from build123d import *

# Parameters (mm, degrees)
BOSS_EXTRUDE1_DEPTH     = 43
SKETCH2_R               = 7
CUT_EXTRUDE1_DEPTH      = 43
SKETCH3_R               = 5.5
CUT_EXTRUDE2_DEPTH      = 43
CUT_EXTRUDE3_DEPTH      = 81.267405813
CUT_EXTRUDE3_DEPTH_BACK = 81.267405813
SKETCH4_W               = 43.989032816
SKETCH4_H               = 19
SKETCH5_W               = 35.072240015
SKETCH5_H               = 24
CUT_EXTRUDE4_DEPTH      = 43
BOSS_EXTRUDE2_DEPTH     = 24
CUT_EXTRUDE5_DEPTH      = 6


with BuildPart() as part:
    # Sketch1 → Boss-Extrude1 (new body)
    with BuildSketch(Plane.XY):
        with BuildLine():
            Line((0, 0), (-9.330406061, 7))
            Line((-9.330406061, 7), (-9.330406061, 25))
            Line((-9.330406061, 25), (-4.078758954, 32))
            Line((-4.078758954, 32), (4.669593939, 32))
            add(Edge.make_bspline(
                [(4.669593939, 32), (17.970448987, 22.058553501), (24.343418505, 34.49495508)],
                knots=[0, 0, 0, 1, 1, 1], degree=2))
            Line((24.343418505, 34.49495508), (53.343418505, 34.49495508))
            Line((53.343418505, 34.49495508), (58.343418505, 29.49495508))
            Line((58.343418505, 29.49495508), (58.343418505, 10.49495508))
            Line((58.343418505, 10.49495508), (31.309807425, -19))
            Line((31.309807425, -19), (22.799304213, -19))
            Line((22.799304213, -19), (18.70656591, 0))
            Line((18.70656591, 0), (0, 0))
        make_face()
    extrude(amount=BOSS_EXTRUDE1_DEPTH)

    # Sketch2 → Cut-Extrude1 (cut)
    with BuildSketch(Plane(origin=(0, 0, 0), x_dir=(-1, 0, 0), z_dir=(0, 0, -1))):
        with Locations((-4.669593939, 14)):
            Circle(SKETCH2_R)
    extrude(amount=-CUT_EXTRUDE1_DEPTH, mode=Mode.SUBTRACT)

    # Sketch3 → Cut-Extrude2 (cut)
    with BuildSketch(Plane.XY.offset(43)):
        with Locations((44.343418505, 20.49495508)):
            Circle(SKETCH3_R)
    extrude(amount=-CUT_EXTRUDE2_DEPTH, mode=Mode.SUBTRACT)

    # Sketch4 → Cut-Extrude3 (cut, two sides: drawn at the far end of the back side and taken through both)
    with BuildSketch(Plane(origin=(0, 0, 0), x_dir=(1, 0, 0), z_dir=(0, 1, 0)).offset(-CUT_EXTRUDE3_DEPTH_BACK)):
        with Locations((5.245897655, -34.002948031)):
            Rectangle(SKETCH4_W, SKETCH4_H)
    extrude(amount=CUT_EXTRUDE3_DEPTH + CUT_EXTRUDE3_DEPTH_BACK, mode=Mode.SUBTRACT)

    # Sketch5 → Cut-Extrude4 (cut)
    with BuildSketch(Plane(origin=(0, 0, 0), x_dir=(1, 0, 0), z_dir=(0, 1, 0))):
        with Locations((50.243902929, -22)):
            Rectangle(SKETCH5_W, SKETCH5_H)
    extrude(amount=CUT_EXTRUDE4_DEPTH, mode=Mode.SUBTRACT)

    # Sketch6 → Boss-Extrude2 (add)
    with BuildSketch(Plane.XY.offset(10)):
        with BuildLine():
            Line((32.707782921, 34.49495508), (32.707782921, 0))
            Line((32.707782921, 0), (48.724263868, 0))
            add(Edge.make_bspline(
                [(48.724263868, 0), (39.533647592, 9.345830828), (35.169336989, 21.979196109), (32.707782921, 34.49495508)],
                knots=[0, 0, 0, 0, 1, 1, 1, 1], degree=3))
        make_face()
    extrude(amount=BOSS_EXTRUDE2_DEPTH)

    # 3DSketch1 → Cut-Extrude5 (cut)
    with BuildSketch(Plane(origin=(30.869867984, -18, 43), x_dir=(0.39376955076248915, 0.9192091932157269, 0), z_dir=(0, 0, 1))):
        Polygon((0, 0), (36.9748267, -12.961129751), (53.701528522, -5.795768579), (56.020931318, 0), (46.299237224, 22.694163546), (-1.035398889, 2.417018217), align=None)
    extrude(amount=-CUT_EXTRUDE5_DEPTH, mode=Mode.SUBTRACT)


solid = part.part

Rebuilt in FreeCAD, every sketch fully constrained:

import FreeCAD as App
import Part
import Sketcher
from FreeCAD import Vector
Q = App.Units.Quantity

doc = App.newDocument("Part")
params = doc.addObject("Spreadsheet::Sheet", "Params")
for row, (alias, value) in enumerate([
    ("sketch1_width", "29 mm"),
    ("sketch1_height", "19 mm"),
    ("sketch1_height2", "18 mm"),
    ("pad1_length", "43 mm"),
    ("sketch2_diameter", "14 mm"),
    ("pocket1_length", "43 mm"),
    ("sketch3_diameter", "11 mm"),
    ("pocket2_length", "43 mm"),
    ("sketch4_height", "19 mm"),
    ("sketch5_height", "24 mm"),
    ("pocket4_length", "43 mm"),
    ("pad2_length", "24 mm"),
    ("pocket5_length", "6 mm"),
], start=1):
    params.set(f"A{row}", alias)
    params.set(f"B{row}", "=" + value)
    params.setAlias(f"B{row}", alias)

body = doc.addObject("PartDesign::Body", "Body")

sketch1 = body.newObject("Sketcher::SketchObject", "Sketch")
sketch1.AttachmentSupport = (doc.getObject("XY_Plane"), [""])
sketch1.MapMode = "FlatFace"
sketch1.addGeometry([
    Part.LineSegment(Vector(-9.330406, 7, 0), Vector(0, 0, 0)),
    Part.LineSegment(Vector(0, 0, 0), Vector(18.706566, 0, 0)),
    Part.LineSegment(Vector(18.706566, 0, 0), Vector(22.799304, -19, 0)),
    Part.LineSegment(Vector(22.799304, -19, 0), Vector(31.309807, -19, 0)),
    Part.LineSegment(Vector(31.309807, -19, 0), Vector(58.343419, 10.494955, 0)),
    Part.LineSegment(Vector(58.343419, 10.494955, 0), Vector(58.343419, 29.494955, 0)),
    Part.LineSegment(Vector(58.343419, 29.494955, 0), Vector(53.343419, 34.494955, 0)),
    Part.LineSegment(Vector(53.343419, 34.494955, 0), Vector(24.343419, 34.494955, 0)),
    Part.BSplineCurve([Vector(4.669594, 32, 0), Vector(17.970449, 22.058554, 0), Vector(24.343419, 34.494955, 0)], [3, 3], [0, 1], False, 2, [1, 1, 1], False),
    Part.LineSegment(Vector(4.669594, 32, 0), Vector(-4.078759, 32, 0)),
    Part.LineSegment(Vector(-4.078759, 32, 0), Vector(-9.330406, 25, 0)),
    Part.LineSegment(Vector(-9.330406, 25, 0), Vector(-9.330406, 7, 0)),
], False)
sketch1.addConstraint([
    Sketcher.Constraint("Block", 8),
    Sketcher.Constraint("Coincident", 0, 2, 1, 1),
    Sketcher.Constraint("Coincident", 1, 2, 2, 1),
    Sketcher.Constraint("Coincident", 2, 2, 3, 1),
    Sketcher.Constraint("Coincident", 3, 2, 4, 1),
    Sketcher.Constraint("Coincident", 4, 2, 5, 1),
    Sketcher.Constraint("Coincident", 5, 2, 6, 1),
    Sketcher.Constraint("Coincident", 6, 2, 7, 1),
    Sketcher.Constraint("Coincident", 7, 2, 8, 2),
    Sketcher.Constraint("Coincident", 8, 1, 9, 1),
    Sketcher.Constraint("Coincident", 9, 2, 10, 1),
    Sketcher.Constraint("Coincident", 10, 2, 11, 1),
    Sketcher.Constraint("Coincident", 11, 2, 0, 1),
    Sketcher.Constraint("Horizontal", 1),
    Sketcher.Constraint("Horizontal", 3),
    Sketcher.Constraint("Vertical", 5),
    Sketcher.Constraint("Horizontal", 7),
    Sketcher.Constraint("Horizontal", 9),
    Sketcher.Constraint("Vertical", 11),
    Sketcher.Constraint("Coincident", 0, 2, -1, 1),
    Sketcher.Constraint("Perpendicular", 0, 10),
    Sketcher.Constraint("DistanceX", 7, 2, 7, 1, 29.0),
    Sketcher.Constraint("DistanceY", 5, 1, 5, 2, 19.0),
    Sketcher.Constraint("DistanceY", 11, 2, 11, 1, 18.0),
    Sketcher.Constraint("Angle", 6, Q("135 deg")),
    Sketcher.Constraint("DistanceY", 2, 2, -1, 1, 19.0),
    Sketcher.Constraint("DistanceY", -1, 1, 10, 2, 25.0),
    Sketcher.Constraint("DistanceX", 6, 2, 5, 2, 5.0),
    Sketcher.Constraint("Distance", 10, 8.750988),
    Sketcher.Constraint("DistanceX", 1, 1, 1, 2, 18.706566),
    Sketcher.Constraint("DistanceX", 3, 1, 3, 2, 8.510503),
    Sketcher.Constraint("DistanceX", 1, 2, 2, 2, 4.092738),
])
sketch1.setExpression("Constraints[21]", "Params.sketch1_width")
sketch1.setExpression("Constraints[22]", "Params.sketch1_height")
sketch1.setExpression("Constraints[23]", "Params.sketch1_height2")
pad1 = body.newObject("PartDesign::Pad", "Pad")
pad1.Profile = sketch1
pad1.setExpression("Length", "Params.pad1_length")

sketch2 = body.newObject("Sketcher::SketchObject", "Sketch001")
sketch2.AttachmentSupport = (doc.getObject("XY_Plane"), [""])
sketch2.MapMode = "FlatFace"
sketch2.addGeometry(Part.Circle(Vector(5, 14, 0), Vector(0, 0, 1), 7), False)
sketch2.addConstraint([
    Sketcher.Constraint("Diameter", 0, 14.0),
    Sketcher.Constraint("DistanceY", -1, 1, 0, 3, 14.0),
    Sketcher.Constraint("DistanceX", -1, 1, 0, 3, 4.669594),
])
sketch2.setExpression("Constraints[0]", "Params.sketch2_diameter")
pocket1 = body.newObject("PartDesign::Pocket", "Pocket")
pocket1.Profile = sketch2
pocket1.setExpression("Length", "Params.pocket1_length")
pocket1.Reversed = True

sketch3 = body.newObject("Sketcher::SketchObject", "Sketch002")
sketch3.AttachmentSupport = (doc.getObject("XY_Plane"), [""])
sketch3.MapMode = "FlatFace"
sketch3.AttachmentOffset = App.Placement(Vector(0, 0, 43), App.Rotation())
sketch3.addGeometry(Part.Circle(Vector(44, 20, 0), Vector(0, 0, 1), 6), False)
sketch3.addConstraint([
    Sketcher.Constraint("Diameter", 0, 11.0),
    Sketcher.Constraint("DistanceX", -1, 1, 0, 3, 44.343419),
    Sketcher.Constraint("DistanceY", -1, 1, 0, 3, 20.494955),
])
sketch3.setExpression("Constraints[0]", "Params.sketch3_diameter")
pocket2 = body.newObject("PartDesign::Pocket", "Pocket001")
pocket2.Profile = sketch3
pocket2.setExpression("Length", "Params.pocket2_length")

sketch4 = body.newObject("Sketcher::SketchObject", "Sketch003")
sketch4.AttachmentSupport = (doc.getObject("XZ_Plane"), [""])
sketch4.MapMode = "FlatFace"
sketch4.addGeometry([
    Part.LineSegment(Vector(-17, 25, 0), Vector(-17, 44, 0)),
    Part.LineSegment(Vector(-17, 44, 0), Vector(27, 44, 0)),
    Part.LineSegment(Vector(27, 44, 0), Vector(27, 25, 0)),
    Part.LineSegment(Vector(27, 25, 0), Vector(-17, 25, 0)),
], False)
sketch4.addConstraint([
    Sketcher.Constraint("Coincident", 0, 2, 1, 1),
    Sketcher.Constraint("Coincident", 1, 2, 2, 1),
    Sketcher.Constraint("Coincident", 2, 2, 3, 1),
    Sketcher.Constraint("Coincident", 3, 2, 0, 1),
    Sketcher.Constraint("Vertical", 0),
    Sketcher.Constraint("Horizontal", 1),
    Sketcher.Constraint("Vertical", 2),
    Sketcher.Constraint("Horizontal", 3),
    Sketcher.Constraint("DistanceY", 0, 1, 0, 2, 19.0),
    Sketcher.Constraint("DistanceX", 1, 1, 1, 2, 43.989033),
    Sketcher.Constraint("DistanceX", 0, 2, -1, 1, 16.748619),
    Sketcher.Constraint("DistanceY", -1, 1, 0, 2, 43.502948),
])
sketch4.setExpression("Constraints[8]", "Params.sketch4_height")
pocket3 = body.newObject("PartDesign::Pocket", "Pocket002")
pocket3.Profile = sketch4
pocket3.Type = "ThroughAll"
pocket3.Midplane = True

sketch5 = body.newObject("Sketcher::SketchObject", "Sketch004")
sketch5.AttachmentSupport = (doc.getObject("XZ_Plane"), [""])
sketch5.MapMode = "FlatFace"
sketch5.addGeometry([
    Part.LineSegment(Vector(33, 10, 0), Vector(33, 34, 0)),
    Part.LineSegment(Vector(33, 34, 0), Vector(68, 34, 0)),
    Part.LineSegment(Vector(68, 34, 0), Vector(68, 10, 0)),
    Part.LineSegment(Vector(68, 10, 0), Vector(33, 10, 0)),
], False)
sketch5.addConstraint([
    Sketcher.Constraint("Coincident", 0, 2, 1, 1),
    Sketcher.Constraint("Coincident", 1, 2, 2, 1),
    Sketcher.Constraint("Coincident", 2, 2, 3, 1),
    Sketcher.Constraint("Coincident", 3, 2, 0, 1),
    Sketcher.Constraint("Vertical", 0),
    Sketcher.Constraint("Horizontal", 1),
    Sketcher.Constraint("Vertical", 2),
    Sketcher.Constraint("Horizontal", 3),
    Sketcher.Constraint("DistanceY", 0, 1, 0, 2, 24.0),
    Sketcher.Constraint("DistanceY", -1, 1, 0, 2, 34.0),
    Sketcher.Constraint("DistanceX", 1, 1, 1, 2, 35.07224),
    Sketcher.Constraint("DistanceX", -1, 1, 0, 2, 32.707783),
])
sketch5.setExpression("Constraints[8]", "Params.sketch5_height")
pocket4 = body.newObject("PartDesign::Pocket", "Pocket003")
pocket4.Profile = sketch5
pocket4.setExpression("Length", "Params.pocket4_length")

sketch6 = body.newObject("Sketcher::SketchObject", "Sketch005")
sketch6.AttachmentSupport = (doc.getObject("XY_Plane"), [""])
sketch6.MapMode = "FlatFace"
sketch6.AttachmentOffset = App.Placement(Vector(0, 0, 10), App.Rotation())
sketch6.addGeometry([
    Part.LineSegment(Vector(32.707783, 34.494955, 0), Vector(32.707783, 0, 0)),
    Part.LineSegment(Vector(32.707783, 0, 0), Vector(48.724264, 0, 0)),
    Part.BSplineCurve([Vector(48.724264, 0, 0), Vector(39.533648, 9.345831, 0), Vector(35.169337, 21.979196, 0), Vector(32.707783, 34.494955, 0)], [4, 4], [0, 1], False, 3, [1, 1, 1, 1], False),
], False)
sketch6.addConstraint([
    Sketcher.Constraint("Block", 2),
    Sketcher.Constraint("Coincident", 0, 2, 1, 1),
    Sketcher.Constraint("Coincident", 1, 2, 2, 1),
    Sketcher.Constraint("Coincident", 2, 2, 0, 1),
    Sketcher.Constraint("Vertical", 0),
    Sketcher.Constraint("Horizontal", 1),
])
pad2 = body.newObject("PartDesign::Pad", "Pad001")
pad2.Profile = sketch6
pad2.setExpression("Length", "Params.pad2_length")

sketch7 = body.newObject("Sketcher::SketchObject", "Sketch006")
sketch7.AttachmentSupport = (doc.getObject("XY_Plane"), [""])
sketch7.MapMode = "FlatFace"
sketch7.AttachmentOffset = App.Placement(Vector(0, 0, 43), App.Rotation())
sketch7.addGeometry([
    Part.LineSegment(Vector(30.9, -18, 0), Vector(57.3, 10.9, 0)),
    Part.LineSegment(Vector(57.3, 10.9, 0), Vector(57.3, 29.1, 0)),
    Part.LineSegment(Vector(57.3, 29.1, 0), Vector(52.9, 33.5, 0)),
    Part.LineSegment(Vector(52.9, 33.5, 0), Vector(28.2, 33.5, 0)),
    Part.LineSegment(Vector(28.2, 33.5, 0), Vector(28.2, -18, 0)),
    Part.LineSegment(Vector(28.2, -18, 0), Vector(30.9, -18, 0)),
], False)
sketch7.addConstraint([
    Sketcher.Constraint("Coincident", 0, 2, 1, 1),
    Sketcher.Constraint("Coincident", 1, 2, 2, 1),
    Sketcher.Constraint("Coincident", 2, 2, 3, 1),
    Sketcher.Constraint("Coincident", 3, 2, 4, 1),
    Sketcher.Constraint("Coincident", 4, 2, 5, 1),
    Sketcher.Constraint("Coincident", 5, 2, 0, 1),
    Sketcher.Constraint("Vertical", 1),
    Sketcher.Constraint("Horizontal", 3),
    Sketcher.Constraint("Vertical", 4),
    Sketcher.Constraint("Horizontal", 5),
    Sketcher.Constraint("Angle", 2, Q("135 deg")),
    Sketcher.Constraint("DistanceY", 4, 2, -1, 1, 18.0),
    Sketcher.Constraint("DistanceX", 3, 2, 3, 1, 24.688791),
    Sketcher.Constraint("DistanceY", 1, 1, 1, 2, 18.196839),
    Sketcher.Constraint("Distance", 0, 39.180718),
    Sketcher.Constraint("Distance", 2, 6.242641),
    Sketcher.Constraint("DistanceX", 5, 1, 5, 2, 2.629454),
    Sketcher.Constraint("DistanceX", -1, 1, 0, 2, 57.343419),
])
pocket5 = body.newObject("PartDesign::Pocket", "Pocket004")
pocket5.Profile = sketch7
pocket5.setExpression("Length", "Params.pocket5_length")

doc.recompute()
